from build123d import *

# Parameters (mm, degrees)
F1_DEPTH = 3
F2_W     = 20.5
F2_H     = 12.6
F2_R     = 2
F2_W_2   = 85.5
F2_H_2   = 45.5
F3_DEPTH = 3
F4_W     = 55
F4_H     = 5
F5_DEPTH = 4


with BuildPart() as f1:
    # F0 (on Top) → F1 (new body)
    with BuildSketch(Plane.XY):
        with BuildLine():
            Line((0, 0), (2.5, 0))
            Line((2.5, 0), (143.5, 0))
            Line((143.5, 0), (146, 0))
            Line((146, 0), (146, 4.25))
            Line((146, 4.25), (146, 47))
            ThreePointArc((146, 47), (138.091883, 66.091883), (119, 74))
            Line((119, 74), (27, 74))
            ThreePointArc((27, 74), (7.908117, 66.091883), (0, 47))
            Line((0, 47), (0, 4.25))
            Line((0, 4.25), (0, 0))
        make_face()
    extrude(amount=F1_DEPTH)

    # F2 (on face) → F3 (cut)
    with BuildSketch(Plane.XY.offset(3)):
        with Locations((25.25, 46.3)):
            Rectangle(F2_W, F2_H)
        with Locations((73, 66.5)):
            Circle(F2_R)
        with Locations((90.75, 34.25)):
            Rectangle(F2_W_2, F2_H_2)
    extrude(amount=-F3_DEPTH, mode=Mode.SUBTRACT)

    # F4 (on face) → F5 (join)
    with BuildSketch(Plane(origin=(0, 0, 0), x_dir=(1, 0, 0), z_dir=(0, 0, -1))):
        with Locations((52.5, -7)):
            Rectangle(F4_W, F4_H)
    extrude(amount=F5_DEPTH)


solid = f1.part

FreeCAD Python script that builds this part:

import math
import FreeCAD as App
import Part
import Sketcher

V = App.Vector


def add_polygon(sketch, points):
    """Adds a closed chain of lines whose ends are joined by coincident constraints."""
    first, n = sketch.GeometryCount, len(points)
    for a, b in zip(points, points[1:] + points[:1]):
        sketch.addGeometry(Part.LineSegment(App.Vector(*a, 0), App.Vector(*b, 0)), False)
    for i in range(n):
        sketch.addConstraint(Sketcher.Constraint("Coincident", first + i, 2, first + (i + 1) % n, 1))

doc = App.newDocument("Part")
body = doc.addObject("PartDesign::Body", "Body")

# Sketch on XY plane
sketch1 = body.newObject("Sketcher::SketchObject", "Sketch")
sketch1.AttachmentSupport = (doc.getObject("XY_Plane"), [""])
sketch1.MapMode = "FlatFace"
sketch1.addGeometry(Part.LineSegment(V(0, 0, 0), V(146, 0, 0)), False)
sketch1.addGeometry(Part.LineSegment(V(146, 0, 0), V(146, 47, 0)), False)
sketch1.addGeometry(Part.ArcOfCircle(Part.Circle(V(119, 47, 0), V(0, 0, 1), 27), math.radians(0.000001), math.radians(89.999999)), False)
sketch1.addGeometry(Part.LineSegment(V(119, 74, 0), V(27, 74, 0)), False)
sketch1.addGeometry(Part.ArcOfCircle(Part.Circle(V(27, 47, 0), V(0, 0, 1), 27), math.radians(90.000001), math.radians(179.999999)), False)
sketch1.addGeometry(Part.LineSegment(V(0, 47, 0), V(0, 0, 0)), False)
sketch1.addConstraint(Sketcher.Constraint("Coincident", 0, 2, 1, 1))
sketch1.addConstraint(Sketcher.Constraint("Tangent", 1, 2, 2, 1))
sketch1.addConstraint(Sketcher.Constraint("Tangent", 2, 2, 3, 1))
sketch1.addConstraint(Sketcher.Constraint("Tangent", 3, 2, 4, 1))
sketch1.addConstraint(Sketcher.Constraint("Tangent", 4, 2, 5, 1))
sketch1.addConstraint(Sketcher.Constraint("Coincident", 5, 2, 0, 1))
sketch1.addConstraint(Sketcher.Constraint("Horizontal", 0))
sketch1.addConstraint(Sketcher.Constraint("Vertical", 1))
sketch1.addConstraint(Sketcher.Constraint("Horizontal", 3))
sketch1.addConstraint(Sketcher.Constraint("Vertical", 5))
sketch1.addConstraint(Sketcher.Constraint("Coincident", 5, 2, -1, 1))
sketch1.addConstraint(Sketcher.Constraint("Equal", 2, 4))
sketch1.addConstraint(Sketcher.Constraint("Radius", 2, 27.0))
sketch1.addConstraint(Sketcher.Constraint("DistanceX", 0, 1, 0, 2, 146.0))
sketch1.addConstraint(Sketcher.Constraint("DistanceY", 1, 1, 1, 2, 47.0))
pad1 = body.newObject("PartDesign::Pad", "Pad")
pad1.Profile = sketch1
pad1.Length = 3

# Sketch on XY plane
sketch2 = body.newObject("Sketcher::SketchObject", "Sketch001")
sketch2.AttachmentSupport = (doc.getObject("XY_Plane"), [""])
sketch2.MapMode = "FlatFace"
sketch2.AttachmentOffset = App.Placement(V(0, 0, 3), App.Rotation())
add_polygon(sketch2, [(15, 52.6), (15, 40), (35.5, 40), (35.5, 52.6)])  # lines 0-3
sketch2.addGeometry(Part.Circle(V(73, 66.5, 0), V(0, 0, 1), 2), False)  # 4
add_polygon(sketch2, [(48, 57), (48, 11.5), (133.5, 11.5), (133.5, 57)])  # lines 5-8
sketch2.addConstraint(Sketcher.Constraint("Vertical", 0))
sketch2.addConstraint(Sketcher.Constraint("Horizontal", 1))
sketch2.addConstraint(Sketcher.Constraint("Vertical", 2))
sketch2.addConstraint(Sketcher.Constraint("Horizontal", 3))
sketch2.addConstraint(Sketcher.Constraint("Vertical", 5))
sketch2.addConstraint(Sketcher.Constraint("Horizontal", 6))
sketch2.addConstraint(Sketcher.Constraint("Vertical", 7))
sketch2.addConstraint(Sketcher.Constraint("Horizontal", 8))
sketch2.addConstraint(Sketcher.Constraint("Diameter", 4, 4.0))
sketch2.addConstraint(Sketcher.Constraint("DistanceX", 1, 1, 1, 2, 20.5))
sketch2.addConstraint(Sketcher.Constraint("DistanceX", 6, 1, 6, 2, 85.5))
sketch2.addConstraint(Sketcher.Constraint("DistanceY", 0, 2, 0, 1, 12.6))
sketch2.addConstraint(Sketcher.Constraint("DistanceY", 5, 2, 5, 1, 45.5))
sketch2.addConstraint(Sketcher.Constraint("DistanceX", -1, 1, 4, 3, 73.0))
sketch2.addConstraint(Sketcher.Constraint("DistanceX", -1, 1, 0, 2, 15.0))
sketch2.addConstraint(Sketcher.Constraint("DistanceY", -1, 1, 0, 2, 40.0))
sketch2.addConstraint(Sketcher.Constraint("DistanceX", -1, 1, 5, 2, 48.0))
sketch2.addConstraint(Sketcher.Constraint("DistanceY", -1, 1, 7, 2, 57.0))
sketch2.addConstraint(Sketcher.Constraint("DistanceY", 5, 2, 4, 3, 55.0))
pocket1 = body.newObject("PartDesign::Pocket", "Pocket")
pocket1.Profile = sketch2
pocket1.Length = 3

# Sketch on XY plane
sketch3 = body.newObject("Sketcher::SketchObject", "Sketch002")
sketch3.AttachmentSupport = (doc.getObject("XY_Plane"), [""])
sketch3.MapMode = "FlatFace"
add_polygon(sketch3, [(25, 4.5), (25, 9.5), (80, 9.5), (80, 4.5)])  # lines 0-3
sketch3.addConstraint(Sketcher.Constraint("Vertical", 0))
sketch3.addConstraint(Sketcher.Constraint("Horizontal", 1))
sketch3.addConstraint(Sketcher.Constraint("Vertical", 2))
sketch3.addConstraint(Sketcher.Constraint("Horizontal", 3))
sketch3.addConstraint(Sketcher.Constraint("DistanceX", 1, 1, 1, 2, 55.0))
sketch3.addConstraint(Sketcher.Constraint("DistanceY", 0, 1, 0, 2, 5.0))
sketch3.addConstraint(Sketcher.Constraint("DistanceX", -1, 1, 0, 2, 25.0))
sketch3.addConstraint(Sketcher.Constraint("DistanceY", -1, 1, 0, 2, 9.5))
pad2 = body.newObject("PartDesign::Pad", "Pad001")
pad2.Profile = sketch3
pad2.Length = 4
pad2.Reversed = True

doc.recompute()
